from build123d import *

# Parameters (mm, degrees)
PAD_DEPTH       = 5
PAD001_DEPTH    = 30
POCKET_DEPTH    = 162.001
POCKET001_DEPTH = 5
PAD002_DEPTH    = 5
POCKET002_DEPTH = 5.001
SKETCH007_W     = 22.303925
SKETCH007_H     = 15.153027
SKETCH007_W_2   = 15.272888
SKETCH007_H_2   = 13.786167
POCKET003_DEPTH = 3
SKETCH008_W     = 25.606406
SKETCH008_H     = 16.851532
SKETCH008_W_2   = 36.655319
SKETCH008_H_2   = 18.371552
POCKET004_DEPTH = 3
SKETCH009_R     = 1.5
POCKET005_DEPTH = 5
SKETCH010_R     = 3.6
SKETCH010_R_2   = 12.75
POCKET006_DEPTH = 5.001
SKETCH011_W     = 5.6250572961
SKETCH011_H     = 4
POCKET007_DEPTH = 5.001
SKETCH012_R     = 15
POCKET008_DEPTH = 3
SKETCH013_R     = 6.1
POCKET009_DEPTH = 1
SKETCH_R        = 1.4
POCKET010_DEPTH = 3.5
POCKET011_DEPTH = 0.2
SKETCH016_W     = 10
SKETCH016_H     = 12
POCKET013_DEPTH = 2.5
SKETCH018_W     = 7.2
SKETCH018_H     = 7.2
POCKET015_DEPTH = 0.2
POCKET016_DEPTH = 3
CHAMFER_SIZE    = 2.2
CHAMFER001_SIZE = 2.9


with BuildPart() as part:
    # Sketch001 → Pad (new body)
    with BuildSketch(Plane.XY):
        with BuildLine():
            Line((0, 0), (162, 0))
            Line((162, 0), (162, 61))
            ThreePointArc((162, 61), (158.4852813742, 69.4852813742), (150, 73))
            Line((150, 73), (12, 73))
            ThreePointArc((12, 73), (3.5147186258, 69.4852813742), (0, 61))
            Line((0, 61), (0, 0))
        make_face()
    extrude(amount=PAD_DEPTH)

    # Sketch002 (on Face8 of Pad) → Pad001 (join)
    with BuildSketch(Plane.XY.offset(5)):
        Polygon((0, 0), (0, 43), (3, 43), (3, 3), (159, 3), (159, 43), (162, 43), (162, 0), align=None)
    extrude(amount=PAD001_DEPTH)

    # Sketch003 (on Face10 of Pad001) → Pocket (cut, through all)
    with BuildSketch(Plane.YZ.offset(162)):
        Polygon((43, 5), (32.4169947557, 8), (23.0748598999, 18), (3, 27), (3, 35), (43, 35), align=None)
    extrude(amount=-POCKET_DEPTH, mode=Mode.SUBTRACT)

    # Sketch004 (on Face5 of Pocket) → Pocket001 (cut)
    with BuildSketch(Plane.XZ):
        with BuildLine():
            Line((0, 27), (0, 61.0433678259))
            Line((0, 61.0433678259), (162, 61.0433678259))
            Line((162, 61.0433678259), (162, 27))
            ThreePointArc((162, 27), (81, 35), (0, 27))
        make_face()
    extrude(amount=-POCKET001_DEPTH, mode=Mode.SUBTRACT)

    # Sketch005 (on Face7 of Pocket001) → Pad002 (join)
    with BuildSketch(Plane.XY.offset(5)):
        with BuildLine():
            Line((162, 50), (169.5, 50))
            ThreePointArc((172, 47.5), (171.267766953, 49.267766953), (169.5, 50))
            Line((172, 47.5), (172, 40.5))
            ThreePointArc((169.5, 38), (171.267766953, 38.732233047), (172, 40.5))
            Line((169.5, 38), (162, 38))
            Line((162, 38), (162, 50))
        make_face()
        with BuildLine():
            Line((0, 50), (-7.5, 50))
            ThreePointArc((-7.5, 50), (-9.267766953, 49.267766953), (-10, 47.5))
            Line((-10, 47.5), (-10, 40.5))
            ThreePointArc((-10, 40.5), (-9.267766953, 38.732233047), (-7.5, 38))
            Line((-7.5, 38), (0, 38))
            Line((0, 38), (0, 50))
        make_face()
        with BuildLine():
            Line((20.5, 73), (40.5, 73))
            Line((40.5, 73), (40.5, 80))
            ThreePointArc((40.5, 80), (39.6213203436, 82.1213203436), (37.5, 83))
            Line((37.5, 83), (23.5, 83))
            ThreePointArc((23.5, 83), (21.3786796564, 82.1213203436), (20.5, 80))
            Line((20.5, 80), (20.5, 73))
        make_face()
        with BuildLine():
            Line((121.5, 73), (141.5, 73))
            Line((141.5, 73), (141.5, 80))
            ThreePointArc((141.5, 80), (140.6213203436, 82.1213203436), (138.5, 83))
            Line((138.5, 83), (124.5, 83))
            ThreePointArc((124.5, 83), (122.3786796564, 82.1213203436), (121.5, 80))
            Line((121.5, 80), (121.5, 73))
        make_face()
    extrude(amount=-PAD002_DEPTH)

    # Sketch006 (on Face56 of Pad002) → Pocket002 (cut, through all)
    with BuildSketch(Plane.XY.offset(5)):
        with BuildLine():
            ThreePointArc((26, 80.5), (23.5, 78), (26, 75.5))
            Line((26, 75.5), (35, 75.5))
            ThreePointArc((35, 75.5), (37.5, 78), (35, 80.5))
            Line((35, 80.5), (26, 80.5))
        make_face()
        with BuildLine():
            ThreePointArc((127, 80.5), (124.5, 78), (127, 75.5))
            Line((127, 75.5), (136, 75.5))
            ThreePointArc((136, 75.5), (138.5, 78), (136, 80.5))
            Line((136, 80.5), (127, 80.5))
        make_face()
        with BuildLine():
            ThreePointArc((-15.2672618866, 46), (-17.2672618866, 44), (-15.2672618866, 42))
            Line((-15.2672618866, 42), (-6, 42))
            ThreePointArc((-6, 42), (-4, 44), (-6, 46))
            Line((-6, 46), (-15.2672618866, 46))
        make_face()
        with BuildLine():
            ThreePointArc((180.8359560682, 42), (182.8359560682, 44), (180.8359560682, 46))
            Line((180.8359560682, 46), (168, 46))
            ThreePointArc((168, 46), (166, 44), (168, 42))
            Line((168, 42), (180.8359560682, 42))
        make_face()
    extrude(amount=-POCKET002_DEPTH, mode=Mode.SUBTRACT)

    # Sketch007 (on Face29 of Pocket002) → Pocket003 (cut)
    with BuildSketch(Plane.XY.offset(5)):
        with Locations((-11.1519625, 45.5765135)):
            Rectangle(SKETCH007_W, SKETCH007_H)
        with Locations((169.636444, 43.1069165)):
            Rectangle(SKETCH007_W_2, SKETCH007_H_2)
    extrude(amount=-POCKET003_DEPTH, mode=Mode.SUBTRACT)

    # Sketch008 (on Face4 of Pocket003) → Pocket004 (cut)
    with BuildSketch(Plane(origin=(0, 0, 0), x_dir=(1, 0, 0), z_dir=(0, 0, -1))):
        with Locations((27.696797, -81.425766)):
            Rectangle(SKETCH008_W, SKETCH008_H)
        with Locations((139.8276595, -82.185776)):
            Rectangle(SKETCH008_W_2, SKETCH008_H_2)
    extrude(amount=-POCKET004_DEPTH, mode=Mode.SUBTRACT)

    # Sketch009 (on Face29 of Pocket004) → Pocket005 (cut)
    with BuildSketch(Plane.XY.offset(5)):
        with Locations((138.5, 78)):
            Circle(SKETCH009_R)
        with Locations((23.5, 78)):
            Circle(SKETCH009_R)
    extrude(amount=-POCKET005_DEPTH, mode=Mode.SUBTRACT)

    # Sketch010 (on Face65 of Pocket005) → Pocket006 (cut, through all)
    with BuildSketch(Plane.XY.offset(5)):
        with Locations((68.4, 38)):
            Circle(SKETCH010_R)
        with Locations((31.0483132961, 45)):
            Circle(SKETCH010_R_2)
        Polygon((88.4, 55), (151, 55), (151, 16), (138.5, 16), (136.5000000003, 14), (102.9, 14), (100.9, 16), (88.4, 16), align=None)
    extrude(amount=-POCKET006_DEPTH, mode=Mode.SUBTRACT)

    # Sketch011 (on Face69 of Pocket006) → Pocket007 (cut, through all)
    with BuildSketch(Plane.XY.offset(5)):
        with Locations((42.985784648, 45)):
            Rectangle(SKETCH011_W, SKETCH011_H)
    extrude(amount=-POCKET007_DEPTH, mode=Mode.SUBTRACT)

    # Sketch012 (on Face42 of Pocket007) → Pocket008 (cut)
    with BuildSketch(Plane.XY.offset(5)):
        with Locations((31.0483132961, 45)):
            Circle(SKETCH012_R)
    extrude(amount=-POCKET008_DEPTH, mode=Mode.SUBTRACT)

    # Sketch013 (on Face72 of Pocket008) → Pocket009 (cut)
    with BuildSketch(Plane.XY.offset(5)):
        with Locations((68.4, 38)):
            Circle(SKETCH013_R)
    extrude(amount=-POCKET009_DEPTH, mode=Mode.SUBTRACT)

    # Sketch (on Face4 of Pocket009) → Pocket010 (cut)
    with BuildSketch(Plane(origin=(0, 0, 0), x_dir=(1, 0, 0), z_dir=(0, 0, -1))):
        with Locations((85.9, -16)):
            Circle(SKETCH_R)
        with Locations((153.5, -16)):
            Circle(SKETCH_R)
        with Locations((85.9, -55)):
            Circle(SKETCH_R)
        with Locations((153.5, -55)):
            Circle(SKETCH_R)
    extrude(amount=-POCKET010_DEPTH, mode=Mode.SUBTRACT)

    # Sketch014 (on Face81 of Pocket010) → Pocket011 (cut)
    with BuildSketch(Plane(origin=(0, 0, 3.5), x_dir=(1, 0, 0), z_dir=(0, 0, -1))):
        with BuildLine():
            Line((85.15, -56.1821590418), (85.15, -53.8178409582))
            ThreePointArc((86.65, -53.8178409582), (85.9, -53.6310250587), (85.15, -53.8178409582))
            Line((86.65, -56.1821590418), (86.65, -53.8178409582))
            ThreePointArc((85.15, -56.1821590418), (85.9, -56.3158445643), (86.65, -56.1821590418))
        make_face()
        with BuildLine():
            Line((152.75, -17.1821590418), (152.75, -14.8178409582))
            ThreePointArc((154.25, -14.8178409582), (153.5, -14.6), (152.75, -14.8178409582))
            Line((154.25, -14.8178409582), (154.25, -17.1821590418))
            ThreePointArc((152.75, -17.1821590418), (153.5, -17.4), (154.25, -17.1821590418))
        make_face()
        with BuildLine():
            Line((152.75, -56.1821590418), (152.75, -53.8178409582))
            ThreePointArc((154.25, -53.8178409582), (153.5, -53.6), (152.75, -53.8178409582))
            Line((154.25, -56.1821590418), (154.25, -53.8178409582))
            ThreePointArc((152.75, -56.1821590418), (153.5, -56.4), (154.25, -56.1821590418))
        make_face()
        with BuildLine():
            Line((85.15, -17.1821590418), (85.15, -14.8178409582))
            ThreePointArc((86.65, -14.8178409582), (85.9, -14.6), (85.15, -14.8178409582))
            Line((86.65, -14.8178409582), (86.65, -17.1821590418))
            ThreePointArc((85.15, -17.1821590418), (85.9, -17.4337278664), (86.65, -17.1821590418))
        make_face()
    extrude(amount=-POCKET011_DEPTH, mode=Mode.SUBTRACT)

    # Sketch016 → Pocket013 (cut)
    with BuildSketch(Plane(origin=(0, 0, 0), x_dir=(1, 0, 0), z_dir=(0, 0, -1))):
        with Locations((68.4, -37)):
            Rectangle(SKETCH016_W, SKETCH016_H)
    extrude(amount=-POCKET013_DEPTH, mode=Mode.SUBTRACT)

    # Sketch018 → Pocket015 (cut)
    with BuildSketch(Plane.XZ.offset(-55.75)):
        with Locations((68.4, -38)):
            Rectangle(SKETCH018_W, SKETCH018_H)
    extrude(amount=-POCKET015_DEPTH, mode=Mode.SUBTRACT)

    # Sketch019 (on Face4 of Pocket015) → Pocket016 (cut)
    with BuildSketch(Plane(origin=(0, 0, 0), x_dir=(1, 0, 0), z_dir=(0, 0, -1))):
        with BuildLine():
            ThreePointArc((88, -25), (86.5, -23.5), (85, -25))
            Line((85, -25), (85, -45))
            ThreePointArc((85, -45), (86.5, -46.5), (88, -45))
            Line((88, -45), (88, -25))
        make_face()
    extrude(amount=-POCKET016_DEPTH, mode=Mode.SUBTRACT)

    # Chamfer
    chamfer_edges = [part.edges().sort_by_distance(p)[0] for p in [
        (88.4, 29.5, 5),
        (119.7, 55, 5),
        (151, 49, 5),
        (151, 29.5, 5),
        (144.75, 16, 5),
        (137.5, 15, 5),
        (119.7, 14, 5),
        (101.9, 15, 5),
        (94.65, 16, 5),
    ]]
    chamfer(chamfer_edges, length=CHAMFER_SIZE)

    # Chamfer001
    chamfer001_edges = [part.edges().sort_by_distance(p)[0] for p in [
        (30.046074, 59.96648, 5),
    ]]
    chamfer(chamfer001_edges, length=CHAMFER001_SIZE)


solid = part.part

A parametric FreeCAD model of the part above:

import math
import FreeCAD as App
import Part
import Sketcher

V = App.Vector
Q = App.Units.Quantity


def edges_at(feature, points):
    """Names of the edges that pass closest to the given points."""
    edges = feature.Shape.Edges
    near = lambda p: min(range(len(edges)), key=lambda i: edges[i].distToShape(Part.Vertex(*p))[0])
    return sorted({f"Edge{near(p) + 1}" for p in points})

doc = App.newDocument("Part")
body = doc.addObject("PartDesign::Body", "Body")

# Sketch on XY plane
sketch1 = body.newObject("Sketcher::SketchObject", "Sketch")
sketch1.AttachmentSupport = (doc.getObject("XY_Plane"), [""])
sketch1.MapMode = "FlatFace"
sketch1.addGeometry([
    Part.LineSegment(V(0, 0, 0), V(162, 0, 0)),  # 0
    Part.LineSegment(V(162, 0, 0), V(162, 61, 0)),  # 1
    Part.ArcOfCircle(Part.Circle(V(150, 61, 0), V(0, 0, 1), 12), math.radians(0), math.radians(90)),  # 2
    Part.LineSegment(V(150, 73, 0), V(12, 73, 0)),  # 3
    Part.ArcOfCircle(Part.Circle(V(12, 61, 0), V(0, 0, 1), 12), math.radians(90), math.radians(180)),  # 4
    Part.LineSegment(V(0, 61, 0), V(0, 0, 0)),  # 5
], False)
sketch1.addConstraint([
    Sketcher.Constraint("Coincident", 0, 2, 1, 1),
    Sketcher.Constraint("Tangent", 1, 2, 2, 1),
    Sketcher.Constraint("Tangent", 2, 2, 3, 1),
    Sketcher.Constraint("Tangent", 3, 2, 4, 1),
    Sketcher.Constraint("Tangent", 4, 2, 5, 1),
    Sketcher.Constraint("Coincident", 5, 2, 0, 1),
    Sketcher.Constraint("Horizontal", 0),
    Sketcher.Constraint("Vertical", 1),
    Sketcher.Constraint("Horizontal", 3),
    Sketcher.Constraint("Vertical", 5),
    Sketcher.Constraint("Coincident", 5, 2, -1, 1),
    Sketcher.Constraint("Equal", 2, 4),
    Sketcher.Constraint("Radius", 2, Q("12 mm")),
    Sketcher.Constraint("DistanceX", 0, 1, 0, 2, Q("162 mm")),
    Sketcher.Constraint("DistanceY", 1, 1, 1, 2, Q("61 mm")),
])
pad1 = body.newObject("PartDesign::Pad", "Pad")
pad1.Profile = sketch1
pad1.Length = 5

# Sketch on XY plane
sketch2 = body.newObject("Sketcher::SketchObject", "Sketch001")
sketch2.AttachmentSupport = (doc.getObject("XY_Plane"), [""])
sketch2.MapMode = "FlatFace"
sketch2.AttachmentOffset = App.Placement(V(0, 0, 5), App.Rotation())
sketch2.addGeometry([
    Part.LineSegment(V(0, 43, 0), V(0, 0, 0)),  # 0
    Part.LineSegment(V(0, 0, 0), V(162, 0, 0)),  # 1
    Part.LineSegment(V(162, 0, 0), V(162, 43, 0)),  # 2
    Part.LineSegment(V(162, 43, 0), V(159, 43, 0)),  # 3
    Part.LineSegment(V(159, 43, 0), V(159, 3, 0)),  # 4
    Part.LineSegment(V(159, 3, 0), V(3, 3, 0)),  # 5
    Part.LineSegment(V(3, 3, 0), V(3, 43, 0)),  # 6
    Part.LineSegment(V(3, 43, 0), V(0, 43, 0)),  # 7
], False)
sketch2.addConstraint([
    Sketcher.Constraint("Coincident", 0, 2, 1, 1),
    Sketcher.Constraint("Coincident", 1, 2, 2, 1),
    Sketcher.Constraint("Coincident", 2, 2, 3, 1),
    Sketcher.Constraint("Coincident", 3, 2, 4, 1),
    Sketcher.Constraint("Coincident", 4, 2, 5, 1),
    Sketcher.Constraint("Coincident", 5, 2, 6, 1),
    Sketcher.Constraint("Coincident", 6, 2, 7, 1),
    Sketcher.Constraint("Coincident", 7, 2, 0, 1),
    Sketcher.Constraint("Vertical", 0),
    Sketcher.Constraint("Horizontal", 1),
    Sketcher.Constraint("Vertical", 2),
    Sketcher.Constraint("Horizontal", 3),
    Sketcher.Constraint("Vertical", 4),
    Sketcher.Constraint("Horizontal", 5),
    Sketcher.Constraint("Vertical", 6),
    Sketcher.Constraint("Horizontal", 7),
    Sketcher.Constraint("Coincident", 0, 2, -1, 1),
    Sketcher.Constraint("Horizontal", 3, 2, 6, 2),
    Sketcher.Constraint("Equal", 3, 7),
    Sketcher.Constraint("DistanceX", 1, 1, 1, 2, Q("162 mm")),
    Sketcher.Constraint("DistanceX", 3, 2, 3, 1, Q("3 mm")),
    Sketcher.Constraint("DistanceY", 0, 2, 0, 1, Q("43 mm")),
    Sketcher.Constraint("DistanceY", 4, 2, 4, 1, Q("40 mm")),
])
pad2 = body.newObject("PartDesign::Pad", "Pad001")
pad2.Profile = sketch2
pad2.Length = 30

# Sketch on YZ plane
sketch3 = body.newObject("Sketcher::SketchObject", "Sketch002")
sketch3.AttachmentSupport = (doc.getObject("YZ_Plane"), [""])
sketch3.MapMode = "FlatFace"
sketch3.AttachmentOffset = App.Placement(V(0, 0, 162), App.Rotation())
sketch3.addGeometry([
    Part.LineSegment(V(32, 8, 0), V(43, 5, 0)),  # 0
    Part.LineSegment(V(43, 5, 0), V(43, 35, 0)),  # 1
    Part.LineSegment(V(43, 35, 0), V(3, 35, 0)),  # 2
    Part.LineSegment(V(3, 35, 0), V(3, 27, 0)),  # 3
    Part.LineSegment(V(3, 27, 0), V(23, 18, 0)),  # 4
    Part.LineSegment(V(23, 18, 0), V(32, 8, 0)),  # 5
], False)
sketch3.addConstraint([
    Sketcher.Constraint("Coincident", 0, 2, 1, 1),
    Sketcher.Constraint("Coincident", 1, 2, 2, 1),
    Sketcher.Constraint("Coincident", 2, 2, 3, 1),
    Sketcher.Constraint("Coincident", 3, 2, 4, 1),
    Sketcher.Constraint("Coincident", 4, 2, 5, 1),
    Sketcher.Constraint("Coincident", 5, 2, 0, 1),
    Sketcher.Constraint("Vertical", 1),
    Sketcher.Constraint("Horizontal", 2),
    Sketcher.Constraint("Vertical", 3),
    Sketcher.Constraint("DistanceX", 2, 2, 2, 1, Q("40 mm")),
    Sketcher.Constraint("DistanceY", 1, 1, 1, 2, Q("30 mm")),
    Sketcher.Constraint("DistanceY", 3, 2, 3, 1, Q("8 mm")),
    Sketcher.Constraint("Distance", 0, Q("11 mm")),
    Sketcher.Constraint("Distance", 4, Q("22 mm")),
    Sketcher.Constraint("DistanceX", -1, 1, 0, 2, Q("43 mm")),
    Sketcher.Constraint("DistanceY", -1, 1, 0, 2, Q("5 mm")),
    Sketcher.Constraint("DistanceY", -1, 1, 4, 2, Q("18 mm")),
    Sketcher.Constraint("DistanceY", -1, 1, 5, 2, Q("8 mm")),
])
pocket1 = body.newObject("PartDesign::Pocket", "Pocket")
pocket1.Profile = sketch3
pocket1.Type = "ThroughAll"

# Sketch on XZ plane
sketch4 = body.newObject("Sketcher::SketchObject", "Sketch003")
sketch4.AttachmentSupport = (doc.getObject("XZ_Plane"), [""])
sketch4.MapMode = "FlatFace"
sketch4.addGeometry([
    Part.LineSegment(V(0, 61, 0), V(0, 27, 0)),
    Part.ArcOfCircle(Part.Circle(V(81, -379, 0), V(0, 0, 1), 414), math.radians(79), math.radians(101)),
    Part.LineSegment(V(162, 27, 0), V(162, 61, 0)),
    Part.LineSegment(V(162, 61, 0), V(0, 61, 0)),
], False)
sketch4.addConstraint([
    Sketcher.Constraint("Coincident", 0, 2, 1, 2),
    Sketcher.Constraint("Coincident", 1, 1, 2, 1),
    Sketcher.Constraint("Coincident", 2, 2, 3, 1),
    Sketcher.Constraint("Coincident", 3, 2, 0, 1),
    Sketcher.Constraint("Vertical", 0),
    Sketcher.Constraint("Vertical", 2),
    Sketcher.Constraint("Horizontal", 3),
    Sketcher.Constraint("PointOnObject", 0, 2, -2),
    Sketcher.Constraint("Horizontal", 0, 2, 1, 1),
    Sketcher.Constraint("DistanceX", 3, 2, 3, 1, Q("162 mm")),
    Sketcher.Constraint("DistanceY", -1, 1, 0, 2, Q("27 mm")),
    Sketcher.Constraint("Radius", 1, Q("414.0625 mm")),
    Sketcher.Constraint("DistanceY", 0, 2, 0, 1, Q("34.043368 mm")),
])
pocket2 = body.newObject("PartDesign::Pocket", "Pocket001")
pocket2.Profile = sketch4
pocket2.Length = 5

# Sketch on XY plane
sketch5 = body.newObject("Sketcher::SketchObject", "Sketch004")
sketch5.AttachmentSupport = (doc.getObject("XY_Plane"), [""])
sketch5.MapMode = "FlatFace"
sketch5.AttachmentOffset = App.Placement(V(0, 0, 5), App.Rotation())
sketch5.addGeometry([
    Part.LineSegment(V(169.5, 50, 0), V(162, 50, 0)),  # 0
    Part.LineSegment(V(162, 50, 0), V(162, 38, 0)),  # 1
    Part.LineSegment(V(162, 38, 0), V(169.5, 38, 0)),  # 2
    Part.ArcOfCircle(Part.Circle(V(169.5, 40.5, 0), V(0, 0, 1), 2.5), math.radians(-90), math.radians(0)),  # 3
    Part.LineSegment(V(172, 40.5, 0), V(172, 47.5, 0)),  # 4
    Part.ArcOfCircle(Part.Circle(V(169.5, 47.5, 0), V(0, 0, 1), 2.5), math.radians(0), math.radians(90)),  # 5
    Part.LineSegment(V(0, 50, 0), V(-7.5, 50, 0)),  # 6
    Part.ArcOfCircle(Part.Circle(V(-7.5, 47.5, 0), V(0, 0, 1), 2.5), math.radians(90), math.radians(180)),  # 7
    Part.LineSegment(V(-10, 47.5, 0), V(-10, 40.5, 0)),  # 8
    Part.ArcOfCircle(Part.Circle(V(-7.5, 40.5, 0), V(0, 0, 1), 2.5), math.radians(180), math.radians(270)),  # 9
    Part.LineSegment(V(-7.5, 38, 0), V(0, 38, 0)),  # 10
    Part.LineSegment(V(0, 38, 0), V(0, 50, 0)),  # 11
    Part.LineSegment(V(20.5, 73, 0), V(40.5, 73, 0)),  # 12
    Part.LineSegment(V(40.5, 73, 0), V(40.5, 80, 0)),  # 13
    Part.ArcOfCircle(Part.Circle(V(37.5, 80, 0), V(0, 0, 1), 3), math.radians(0), math.radians(90)),  # 14
    Part.LineSegment(V(37.5, 83, 0), V(23.5, 83, 0)),  # 15
    Part.ArcOfCircle(Part.Circle(V(23.5, 80, 0), V(0, 0, 1), 3), math.radians(90), math.radians(180)),  # 16
    Part.LineSegment(V(20.5, 80, 0), V(20.5, 73, 0)),  # 17
    Part.LineSegment(V(121.5, 73, 0), V(141.5, 73, 0)),  # 18
    Part.LineSegment(V(141.5, 73, 0), V(141.5, 80, 0)),  # 19
    Part.ArcOfCircle(Part.Circle(V(138.5, 80, 0), V(0, 0, 1), 3), math.radians(0), math.radians(90)),  # 20
    Part.LineSegment(V(138.5, 83, 0), V(124.5, 83, 0)),  # 21
    Part.ArcOfCircle(Part.Circle(V(124.5, 80, 0), V(0, 0, 1), 3), math.radians(90), math.radians(180)),  # 22
    Part.LineSegment(V(121.5, 80, 0), V(121.5, 73, 0)),  # 23
], False)
sketch5.addConstraint([
    Sketcher.Constraint("Coincident", 0, 2, 1, 1),
    Sketcher.Constraint("Coincident", 1, 2, 2, 1),
    Sketcher.Constraint("Tangent", 2, 2, 3, 1),
    Sketcher.Constraint("Tangent", 3, 2, 4, 1),
    Sketcher.Constraint("Tangent", 4, 2, 5, 1),
    Sketcher.Constraint("Tangent", 5, 2, 0, 1),
    Sketcher.Constraint("Tangent", 6, 2, 7, 1),
    Sketcher.Constraint("Tangent", 7, 2, 8, 1),
    Sketcher.Constraint("Tangent", 8, 2, 9, 1),
    Sketcher.Constraint("Tangent", 9, 2, 10, 1),
    Sketcher.Constraint("Coincident", 10, 2, 11, 1),
    Sketcher.Constraint("Coincident", 11, 2, 6, 1),
    Sketcher.Constraint("Coincident", 12, 2, 13, 1),
    Sketcher.Constraint("Tangent", 13, 2, 14, 1),
    Sketcher.Constraint("Tangent", 14, 2, 15, 1),
    Sketcher.Constraint("Tangent", 15, 2, 16, 1),
    Sketcher.Constraint("Tangent", 16, 2, 17, 1),
    Sketcher.Constraint("Coincident", 17, 2, 12, 1),
    Sketcher.Constraint("Coincident", 18, 2, 19, 1),
    Sketcher.Constraint("Tangent", 19, 2, 20, 1),
    Sketcher.Constraint("Tangent", 20, 2, 21, 1),
    Sketcher.Constraint("Tangent", 21, 2, 22, 1),
    Sketcher.Constraint("Tangent", 22, 2, 23, 1),
    Sketcher.Constraint("Coincident", 23, 2, 18, 1),
    Sketcher.Constraint("Horizontal", 0),
    Sketcher.Constraint("Vertical", 1),
    Sketcher.Constraint("Horizontal", 2),
    Sketcher.Constraint("Vertical", 4),
    Sketcher.Constraint("Horizontal", 6),
    Sketcher.Constraint("Vertical", 8),
    Sketcher.Constraint("Horizontal", 10),
    Sketcher.Constraint("Vertical", 11),
    Sketcher.Constraint("Horizontal", 12),
    Sketcher.Constraint("Vertical", 13),
    Sketcher.Constraint("Horizontal", 15),
    Sketcher.Constraint("Vertical", 17),
    Sketcher.Constraint("Horizontal", 18),
    Sketcher.Constraint("Vertical", 19),
    Sketcher.Constraint("Horizontal", 21),
    Sketcher.Constraint("Vertical", 23),
    Sketcher.Constraint("Equal", 3, 5),
    Sketcher.Constraint("Equal", 5, 7),
    Sketcher.Constraint("Equal", 7, 9),
    Sketcher.Constraint("Equal", 14, 16),
    Sketcher.Constraint("Equal", 16, 20),
    Sketcher.Constraint("Equal", 20, 22),
    Sketcher.Constraint("PointOnObject", 10, 2, -2),
    Sketcher.Constraint("Horizontal", 5, 3, 7, 3),
    Sketcher.Constraint("Horizontal", 3, 3, 9, 3),
    Sketcher.Constraint("Horizontal", 16, 3, 20, 3),
    Sketcher.Constraint("Horizontal", 17, 2, 18, 2),
    Sketcher.Constraint("Equal", 2, 6),
    Sketcher.Constraint("Equal", 12, 18),
    Sketcher.Constraint("Equal", 8, 13),
    Sketcher.Constraint("Radius", 14, Q("3 mm")),
    Sketcher.Constraint("Radius", 3, Q("2.5 mm")),
    Sketcher.Constraint("DistanceX", 12, 1, 12, 2, Q("20 mm")),
    Sketcher.Constraint("DistanceY", 1, 2, 1, 1, Q("12 mm")),
    Sketcher.Constraint("DistanceX", 0, 2, 0, 1, Q("7.5 mm")),
    Sketcher.Constraint("DistanceY", -1, 1, 14, 3, Q("80 mm")),
    Sketcher.Constraint("DistanceX", -1, 1, 0, 2, Q("162 mm")),
    Sketcher.Constraint("DistanceY", -1, 1, 0, 2, Q("50 mm")),
    Sketcher.Constraint("DistanceX", 7, 3, 14, 3, Q("45 mm")),
    Sketcher.Constraint("DistanceX", 20, 3, 5, 3, Q("31 mm")),
])
pad3 = body.newObject("PartDesign::Pad", "Pad002")
pad3.Profile = sketch5
pad3.Length = 5
pad3.Reversed = True

# Sketch on XY plane
sketch6 = body.newObject("Sketcher::SketchObject", "Sketch005")
sketch6.AttachmentSupport = (doc.getObject("XY_Plane"), [""])
sketch6.MapMode = "FlatFace"
sketch6.AttachmentOffset = App.Placement(V(0, 0, 5), App.Rotation())
sketch6.addGeometry([
    Part.ArcOfCircle(Part.Circle(V(26, 78, 0), V(0, 0, 1), 2.5), math.radians(90), math.radians(270)),  # 0
    Part.LineSegment(V(26, 75.5, 0), V(35, 75.5, 0)),  # 1
    Part.ArcOfCircle(Part.Circle(V(35, 78, 0), V(0, 0, 1), 2.5), math.radians(-90), math.radians(90)),  # 2
    Part.LineSegment(V(35, 80.5, 0), V(26, 80.5, 0)),  # 3
    Part.ArcOfCircle(Part.Circle(V(127, 78, 0), V(0, 0, 1), 2.5), math.radians(90), math.radians(270)),  # 4
    Part.LineSegment(V(127, 75.5, 0), V(136, 75.5, 0)),  # 5
    Part.ArcOfCircle(Part.Circle(V(136, 78, 0), V(0, 0, 1), 2.5), math.radians(-90), math.radians(90)),  # 6
    Part.LineSegment(V(136, 80.5, 0), V(127, 80.5, 0)),  # 7
    Part.ArcOfCircle(Part.Circle(V(-15.3, 44, 0), V(0, 0, 1), 2), math.radians(90), math.radians(270)),  # 8
    Part.LineSegment(V(-15.3, 42, 0), V(-6, 42, 0)),  # 9
    Part.ArcOfCircle(Part.Circle(V(-6, 44, 0), V(0, 0, 1), 2), math.radians(-90), math.radians(90)),  # 10
    Part.LineSegment(V(-6, 46, 0), V(-15.3, 46, 0)),  # 11
    Part.ArcOfCircle(Part.Circle(V(180.8, 44, 0), V(0, 0, 1), 2), math.radians(-90), math.radians(90)),  # 12
    Part.LineSegment(V(180.8, 46, 0), V(168, 46, 0)),  # 13
    Part.ArcOfCircle(Part.Circle(V(168, 44, 0), V(0, 0, 1), 2), math.radians(90), math.radians(270)),  # 14
    Part.LineSegment(V(168, 42, 0), V(180.8, 42, 0)),  # 15
], False)
sketch6.addConstraint([
    Sketcher.Constraint("Tangent", 0, 2, 1, 1),
    Sketcher.Constraint("Tangent", 1, 2, 2, 1),
    Sketcher.Constraint("Tangent", 2, 2, 3, 1),
    Sketcher.Constraint("Tangent", 3, 2, 0, 1),
    Sketcher.Constraint("Tangent", 4, 2, 5, 1),
    Sketcher.Constraint("Tangent", 5, 2, 6, 1),
    Sketcher.Constraint("Tangent", 6, 2, 7, 1),
    Sketcher.Constraint("Tangent", 7, 2, 4, 1),
    Sketcher.Constraint("Tangent", 8, 2, 9, 1),
    Sketcher.Constraint("Tangent", 9, 2, 10, 1),
    Sketcher.Constraint("Tangent", 10, 2, 11, 1),
    Sketcher.Constraint("Tangent", 11, 2, 8, 1),
    Sketcher.Constraint("Tangent", 12, 2, 13, 1),
    Sketcher.Constraint("Tangent", 13, 2, 14, 1),
    Sketcher.Constraint("Tangent", 14, 2, 15, 1),
    Sketcher.Constraint("Tangent", 15, 2, 12, 1),
    Sketcher.Constraint("Horizontal", 1),
    Sketcher.Constraint("Horizontal", 3),
    Sketcher.Constraint("Horizontal", 5),
    Sketcher.Constraint("Horizontal", 7),
    Sketcher.Constraint("Horizontal", 9),
    Sketcher.Constraint("Horizontal", 11),
    Sketcher.Constraint("Horizontal", 13),
    Sketcher.Constraint("Horizontal", 15),
    Sketcher.Constraint("Equal", 2, 4),
    Sketcher.Constraint("Equal", 10, 12),
    Sketcher.Constraint("Horizontal", 2, 3, 4, 3),
    Sketcher.Constraint("Horizontal", 10, 3, 12, 3),
    Sketcher.Constraint("Equal", 3, 5),
    Sketcher.Constraint("Radius", 8, Q("2 mm")),
    Sketcher.Constraint("Radius", 0, Q("2.5 mm")),
    Sketcher.Constraint("DistanceX", 1, 1, 1, 2, Q("9 mm")),
    Sketcher.Constraint("DistanceX", -1, 1, 0, 3, Q("26 mm")),
    Sketcher.Constraint("DistanceY", -1, 1, 0, 3, Q("78 mm")),
    Sketcher.Constraint("DistanceX", -1, 1, 4, 3, Q("127 mm")),
    Sketcher.Constraint("DistanceY", -1, 1, 8, 3, Q("44 mm")),
    Sketcher.Constraint("DistanceX", 10, 3, -1, 1, Q("6 mm")),
    Sketcher.Constraint("DistanceX", -1, 1, 14, 3, Q("168 mm")),
    Sketcher.Constraint("DistanceX", 9, 1, 9, 2, Q("9.267262 mm")),
    Sketcher.Constraint("DistanceX", 13, 2, 13, 1, Q("12.835956 mm")),
])
pocket3 = body.newObject("PartDesign::Pocket", "Pocket002")
pocket3.Profile = sketch6
pocket3.Type = "ThroughAll"

# Sketch on XY plane
sketch7 = body.newObject("Sketcher::SketchObject", "Sketch006")
sketch7.AttachmentSupport = (doc.getObject("XY_Plane"), [""])
sketch7.MapMode = "FlatFace"
sketch7.AttachmentOffset = App.Placement(V(0, 0, 5), App.Rotation())
sketch7.addGeometry([
    Part.LineSegment(V(-22, 53, 0), V(-22, 38, 0)),  # 0
    Part.LineSegment(V(-22, 38, 0), V(0, 38, 0)),  # 1
    Part.LineSegment(V(0, 38, 0), V(0, 53, 0)),  # 2
    Part.LineSegment(V(0, 53, 0), V(-22, 53, 0)),  # 3
    Part.LineSegment(V(162, 50, 0), V(162, 36, 0)),  # 4
    Part.LineSegment(V(162, 36, 0), V(177, 36, 0)),  # 5
    Part.LineSegment(V(177, 36, 0), V(177, 50, 0)),  # 6
    Part.LineSegment(V(177, 50, 0), V(162, 50, 0)),  # 7
], False)
sketch7.addConstraint([
    Sketcher.Constraint("Coincident", 0, 2, 1, 1),
    Sketcher.Constraint("Coincident", 1, 2, 2, 1),
    Sketcher.Constraint("Coincident", 2, 2, 3, 1),
    Sketcher.Constraint("Coincident", 3, 2, 0, 1),
    Sketcher.Constraint("Coincident", 4, 2, 5, 1),
    Sketcher.Constraint("Coincident", 5, 2, 6, 1),
    Sketcher.Constraint("Coincident", 6, 2, 7, 1),
    Sketcher.Constraint("Coincident", 7, 2, 4, 1),
    Sketcher.Constraint("Vertical", 0),
    Sketcher.Constraint("Horizontal", 1),
    Sketcher.Constraint("Vertical", 2),
    Sketcher.Constraint("Horizontal", 3),
    Sketcher.Constraint("Vertical", 4),
    Sketcher.Constraint("Horizontal", 5),
    Sketcher.Constraint("Vertical", 6),
    Sketcher.Constraint("Horizontal", 7),
    Sketcher.Constraint("PointOnObject", 1, 2, -2),
    Sketcher.Constraint("DistanceY", -1, 1, 0, 2, Q("38 mm")),
    Sketcher.Constraint("DistanceX", -1, 1, 4, 2, Q("162 mm")),
    Sketcher.Constraint("DistanceY", -1, 1, 6, 2, Q("50 mm")),
    Sketcher.Constraint("DistanceX", 1, 1, 1, 2, Q("22.303925 mm")),
    Sketcher.Constraint("DistanceX", 5, 1, 5, 2, Q("15.272888 mm")),
    Sketcher.Constraint("DistanceY", 0, 2, 0, 1, Q("15.153027 mm")),
    Sketcher.Constraint("DistanceY", 4, 2, 4, 1, Q("13.786167 mm")),
])
pocket4 = body.newObject("PartDesign::Pocket", "Pocket003")
pocket4.Profile = sketch7
pocket4.Length = 3

# Sketch on XY plane
sketch8 = body.newObject("Sketcher::SketchObject", "Sketch007")
sketch8.AttachmentSupport = (doc.getObject("XY_Plane"), [""])
sketch8.MapMode = "FlatFace"
sketch8.addGeometry([
    Part.LineSegment(V(15, 73, 0), V(15, 90, 0)),  # 0
    Part.LineSegment(V(15, 90, 0), V(40, 90, 0)),  # 1
    Part.LineSegment(V(40, 90, 0), V(40, 73, 0)),  # 2
    Part.LineSegment(V(40, 73, 0), V(15, 73, 0)),  # 3
    Part.LineSegment(V(122, 73, 0), V(122, 91, 0)),  # 4
    Part.LineSegment(V(122, 91, 0), V(158, 91, 0)),  # 5
    Part.LineSegment(V(158, 91, 0), V(158, 73, 0)),  # 6
    Part.LineSegment(V(158, 73, 0), V(122, 73, 0)),  # 7
], False)
sketch8.addConstraint([
    Sketcher.Constraint("Coincident", 0, 2, 1, 1),
    Sketcher.Constraint("Coincident", 1, 2, 2, 1),
    Sketcher.Constraint("Coincident", 2, 2, 3, 1),
    Sketcher.Constraint("Coincident", 3, 2, 0, 1),
    Sketcher.Constraint("Coincident", 4, 2, 5, 1),
    Sketcher.Constraint("Coincident", 5, 2, 6, 1),
    Sketcher.Constraint("Coincident", 6, 2, 7, 1),
    Sketcher.Constraint("Coincident", 7, 2, 4, 1),
    Sketcher.Constraint("Vertical", 0),
    Sketcher.Constraint("Horizontal", 1),
    Sketcher.Constraint("Vertical", 2),
    Sketcher.Constraint("Horizontal", 3),
    Sketcher.Constraint("Vertical", 4),
    Sketcher.Constraint("Horizontal", 5),
    Sketcher.Constraint("Vertical", 6),
    Sketcher.Constraint("Horizontal", 7),
    Sketcher.Constraint("Horizontal", 3, 2, 6, 2),
    Sketcher.Constraint("DistanceY", -1, 1, 2, 2, Q("73 mm")),
    Sketcher.Constraint("DistanceX", 1, 2, 4, 2, Q("81 mm")),
    Sketcher.Constraint("DistanceX", -1, 1, 1, 2, Q("40.5 mm")),
    Sketcher.Constraint("DistanceX", 5, 1, 5, 2, Q("36.655319 mm")),
    Sketcher.Constraint("DistanceY", 4, 1, 4, 2, Q("18.371552 mm")),
    Sketcher.Constraint("DistanceX", 1, 1, 1, 2, Q("25.606406 mm")),
    Sketcher.Constraint("DistanceY", 0, 1, 0, 2, Q("16.851532 mm")),
])
pocket5 = body.newObject("PartDesign::Pocket", "Pocket004")
pocket5.Profile = sketch8
pocket5.Length = 3
pocket5.Reversed = True

# Sketch on XY plane
sketch9 = body.newObject("Sketcher::SketchObject", "Sketch008")
sketch9.AttachmentSupport = (doc.getObject("XY_Plane"), [""])
sketch9.MapMode = "FlatFace"
sketch9.AttachmentOffset = App.Placement(V(0, 0, 5), App.Rotation())
sketch9.addGeometry([
    Part.Circle(V(138.5, 78, 0), V(0, 0, 1), 1.5),
    Part.Circle(V(23.5, 78, 0), V(0, 0, 1), 1.5),
], False)
sketch9.addConstraint([
    Sketcher.Constraint("Equal", 0, 1),
    Sketcher.Constraint("Horizontal", 0, 3, 1, 3),
    Sketcher.Constraint("Diameter", 0, Q("3 mm")),
    Sketcher.Constraint("DistanceY", -1, 1, 0, 3, Q("78 mm")),
    Sketcher.Constraint("DistanceX", 1, 3, 0, 3, Q("115 mm")),
    Sketcher.Constraint("DistanceX", -1, 1, 0, 3, Q("138.5 mm")),
])
pocket6 = body.newObject("PartDesign::Pocket", "Pocket005")
pocket6.Profile = sketch9
pocket6.Length = 5

# Sketch on XY plane
sketch10 = body.newObject("Sketcher::SketchObject", "Sketch009")
sketch10.AttachmentSupport = (doc.getObject("XY_Plane"), [""])
sketch10.MapMode = "FlatFace"
sketch10.AttachmentOffset = App.Placement(V(0, 0, 5), App.Rotation())
sketch10.addGeometry([
    Part.Circle(V(68.4, 38, 0), V(0, 0, 1), 3.6),  # 0
    Part.Circle(V(31, 45, 0), V(0, 0, 1), 12.8),  # 1
    Part.LineSegment(V(151, 55, 0), V(88.4, 55, 0)),  # 2
    Part.LineSegment(V(88.4, 55, 0), V(88.4, 16, 0)),  # 3
    Part.LineSegment(V(88.4, 16, 0), V(100.9, 16, 0)),  # 4
    Part.LineSegment(V(100.9, 16, 0), V(102.9, 14, 0)),  # 5
    Part.LineSegment(V(102.9, 14, 0), V(136.5, 14, 0)),  # 6
    Part.LineSegment(V(136.5, 14, 0), V(138.5, 16, 0)),  # 7
    Part.LineSegment(V(138.5, 16, 0), V(151, 16, 0)),  # 8
    Part.LineSegment(V(151, 16, 0), V(151, 55, 0)),  # 9
], False)
sketch10.addConstraint([
    Sketcher.Constraint("Coincident", 2, 2, 3, 1),
    Sketcher.Constraint("Coincident", 3, 2, 4, 1),
    Sketcher.Constraint("Coincident", 4, 2, 5, 1),
    Sketcher.Constraint("Coincident", 5, 2, 6, 1),
    Sketcher.Constraint("Coincident", 6, 2, 7, 1),
    Sketcher.Constraint("Coincident", 7, 2, 8, 1),
    Sketcher.Constraint("Coincident", 8, 2, 9, 1),
    Sketcher.Constraint("Coincident", 9, 2, 2, 1),
    Sketcher.Constraint("Horizontal", 2),
    Sketcher.Constraint("Vertical", 3),
    Sketcher.Constraint("Horizontal", 4),
    Sketcher.Constraint("Horizontal", 6),
    Sketcher.Constraint("Horizontal", 8),
    Sketcher.Constraint("Vertical", 9),
    Sketcher.Constraint("Perpendicular", 5, 7),
    Sketcher.Constraint("Horizontal", 4, 2, 7, 2),
    Sketcher.Constraint("Equal", 4, 8),
    Sketcher.Constraint("Equal", 5, 7),
    Sketcher.Constraint("Diameter", 0, Q("7.2 mm")),
    Sketcher.Constraint("Diameter", 1, Q("25.5 mm")),
    Sketcher.Constraint("DistanceY", 3, 2, 3, 1, Q("39 mm")),
    Sketcher.Constraint("DistanceX", 2, 2, 2, 1, Q("62.6 mm")),
    Sketcher.Constraint("DistanceX", 4, 1, 4, 2, Q("12.5 mm")),
    Sketcher.Constraint("DistanceX", 6, 1, 6, 2, Q("33.6 mm")),
    Sketcher.Constraint("DistanceY", -1, 1, 0, 3, Q("38 mm")),
    Sketcher.Constraint("DistanceY", -1, 1, 1, 3, Q("45 mm")),
    Sketcher.Constraint("DistanceY", -1, 1, 2, 2, Q("55 mm")),
    Sketcher.Constraint("DistanceX", -1, 1, 8, 2, Q("151 mm")),
    Sketcher.Constraint("DistanceX", 0, 3, 2, 2, Q("20 mm")),
    Sketcher.Constraint("DistanceX", -1, 1, 1, 3, Q("31.048313 mm")),
])
pocket7 = body.newObject("PartDesign::Pocket", "Pocket006")
pocket7.Profile = sketch10
pocket7.Type = "ThroughAll"

# Sketch on XY plane
sketch11 = body.newObject("Sketcher::SketchObject", "Sketch010")
sketch11.AttachmentSupport = (doc.getObject("XY_Plane"), [""])
sketch11.MapMode = "FlatFace"
sketch11.AttachmentOffset = App.Placement(V(0, 0, 5), App.Rotation())
sketch11.addGeometry([
    Part.LineSegment(V(40.2, 47, 0), V(40.2, 43, 0)),
    Part.LineSegment(V(40.2, 43, 0), V(45.8, 43, 0)),
    Part.LineSegment(V(45.8, 43, 0), V(45.8, 47, 0)),
    Part.LineSegment(V(45.8, 47, 0), V(40.2, 47, 0)),
], False)
sketch11.addConstraint([
    Sketcher.Constraint("Coincident", 0, 2, 1, 1),
    Sketcher.Constraint("Coincident", 1, 2, 2, 1),
    Sketcher.Constraint("Coincident", 2, 2, 3, 1),
    Sketcher.Constraint("Coincident", 3, 2, 0, 1),
    Sketcher.Constraint("Vertical", 0),
    Sketcher.Constraint("Horizontal", 1),
    Sketcher.Constraint("Vertical", 2),
    Sketcher.Constraint("Horizontal", 3),
    Sketcher.Constraint("DistanceY", 0, 2, 0, 1, Q("4 mm")),
    Sketcher.Constraint("DistanceY", -1, 1, 0, 2, Q("43 mm")),
    Sketcher.Constraint("DistanceX", 1, 1, 1, 2, Q("5.625057 mm")),
    Sketcher.Constraint("DistanceX", -1, 1, 0, 2, Q("40.173256 mm")),
])
pocket8 = body.newObject("PartDesign::Pocket", "Pocket007")
pocket8.Profile = sketch11
pocket8.Type = "ThroughAll"

# Sketch on XY plane
sketch12 = body.newObject("Sketcher::SketchObject", "Sketch011")
sketch12.AttachmentSupport = (doc.getObject("XY_Plane"), [""])
sketch12.MapMode = "FlatFace"
sketch12.AttachmentOffset = App.Placement(V(0, 0, 5), App.Rotation())
sketch12.addGeometry(Part.Circle(V(31, 45, 0), V(0, 0, 1), 15), False)
sketch12.addConstraint([
    Sketcher.Constraint("Diameter", 0, Q("30 mm")),
    Sketcher.Constraint("DistanceY", -1, 1, 0, 3, Q("45 mm")),
    Sketcher.Constraint("DistanceX", -1, 1, 0, 3, Q("31.048313 mm")),
])
pocket9 = body.newObject("PartDesign::Pocket", "Pocket008")
pocket9.Profile = sketch12
pocket9.Length = 3

# Sketch on XY plane
sketch13 = body.newObject("Sketcher::SketchObject", "Sketch012")
sketch13.AttachmentSupport = (doc.getObject("XY_Plane"), [""])
sketch13.MapMode = "FlatFace"
sketch13.AttachmentOffset = App.Placement(V(0, 0, 5), App.Rotation())
sketch13.addGeometry(Part.Circle(V(68, 38, 0), V(0, 0, 1), 6), False)
sketch13.addConstraint([
    Sketcher.Constraint("Diameter", 0, Q("12.2 mm")),
    Sketcher.Constraint("DistanceY", -1, 1, 0, 3, Q("38 mm")),
    Sketcher.Constraint("DistanceX", -1, 1, 0, 3, Q("68.4 mm")),
])
pocket10 = body.newObject("PartDesign::Pocket", "Pocket009")
pocket10.Profile = sketch13
pocket10.Length = 1

# Sketch on XY plane
sketch14 = body.newObject("Sketcher::SketchObject", "Sketch013")
sketch14.AttachmentSupport = (doc.getObject("XY_Plane"), [""])
sketch14.MapMode = "FlatFace"
sketch14.addGeometry([
    Part.Circle(V(85.9, 16, 0), V(0, 0, 1), 1.4),
    Part.Circle(V(153.5, 16, 0), V(0, 0, 1), 1.4),
    Part.Circle(V(85.9, 55, 0), V(0, 0, 1), 1.4),
    Part.Circle(V(153.5, 55, 0), V(0, 0, 1), 1.4),
], False)
sketch14.addConstraint([
    Sketcher.Constraint("Equal", 0, 1),
    Sketcher.Constraint("Equal", 1, 2),
    Sketcher.Constraint("Equal", 2, 3),
    Sketcher.Constraint("Horizontal", 0, 3, 1, 3),
    Sketcher.Constraint("Horizontal", 2, 3, 3, 3),
    Sketcher.Constraint("Vertical", 0, 3, 2, 3),
    Sketcher.Constraint("Vertical", 1, 3, 3, 3),
    Sketcher.Constraint("Diameter", 0, Q("2.8 mm")),
    Sketcher.Constraint("DistanceY", -1, 1, 0, 3, Q("16 mm")),
    Sketcher.Constraint("DistanceY", -1, 1, 2, 3, Q("55 mm")),
    Sketcher.Constraint("DistanceX", -1, 1, 0, 3, Q("85.9 mm")),
    Sketcher.Constraint("DistanceX", -1, 1, 1, 3, Q("153.5 mm")),
])
pocket11 = body.newObject("PartDesign::Pocket", "Pocket010")
pocket11.Profile = sketch14
pocket11.Length = 3.5
pocket11.Reversed = True

# Sketch on XY plane
sketch15 = body.newObject("Sketcher::SketchObject", "Sketch014")
sketch15.AttachmentSupport = (doc.getObject("XY_Plane"), [""])
sketch15.MapMode = "FlatFace"
sketch15.AttachmentOffset = App.Placement(V(0, 0, 3.5), App.Rotation())
sketch15.addGeometry([
    Part.LineSegment(V(85.2, 53.8, 0), V(85.2, 56.2, 0)),  # 0
    Part.ArcOfCircle(Part.Circle(V(85.9, 54.1, 0), V(0, 0, 1), 2.2), math.radians(70), math.radians(110)),  # 1
    Part.LineSegment(V(86.7, 56.2, 0), V(86.7, 53.8, 0)),  # 2
    Part.ArcOfCircle(Part.Circle(V(85.9, 55.2, 0), V(0, 0, 1), 1.6), math.radians(-118), math.radians(-62)),  # 3
    Part.LineSegment(V(152.8, 14.8, 0), V(152.8, 17.2, 0)),  # 4
    Part.ArcOfCircle(Part.Circle(V(153.5, 16, 0), V(0, 0, 1), 1.4), math.radians(58), math.radians(122)),  # 5
    Part.LineSegment(V(154.2, 17.2, 0), V(154.2, 14.8, 0)),  # 6
    Part.ArcOfCircle(Part.Circle(V(153.5, 16, 0), V(0, 0, 1), 1.4), math.radians(-122), math.radians(-58)),  # 7
    Part.LineSegment(V(152.8, 53.8, 0), V(152.8, 56.2, 0)),  # 8
    Part.ArcOfCircle(Part.Circle(V(153.5, 55, 0), V(0, 0, 1), 1.4), math.radians(58), math.radians(122)),  # 9
    Part.LineSegment(V(154.2, 56.2, 0), V(154.2, 53.8, 0)),  # 10
    Part.ArcOfCircle(Part.Circle(V(153.5, 55, 0), V(0, 0, 1), 1.4), math.radians(-122), math.radians(-58)),  # 11
    Part.LineSegment(V(85.2, 14.8, 0), V(85.2, 17.2, 0)),  # 12
    Part.ArcOfCircle(Part.Circle(V(85.9, 16.2, 0), V(0, 0, 1), 1.2), math.radians(53), math.radians(127)),  # 13
    Part.LineSegment(V(86.7, 17.2, 0), V(86.7, 14.8, 0)),  # 14
    Part.ArcOfCircle(Part.Circle(V(85.9, 16, 0), V(0, 0, 1), 1.4), math.radians(-122), math.radians(-58)),  # 15
], False)
sketch15.addConstraint([
    Sketcher.Constraint("Coincident", 0, 2, 1, 2),
    Sketcher.Constraint("Coincident", 1, 1, 2, 1),
    Sketcher.Constraint("Coincident", 2, 2, 3, 2),
    Sketcher.Constraint("Coincident", 3, 1, 0, 1),
    Sketcher.Constraint("Coincident", 4, 2, 5, 2),
    Sketcher.Constraint("Coincident", 5, 1, 6, 1),
    Sketcher.Constraint("Coincident", 6, 2, 7, 2),
    Sketcher.Constraint("Coincident", 7, 1, 4, 1),
    Sketcher.Constraint("Coincident", 8, 2, 9, 2),
    Sketcher.Constraint("Coincident", 9, 1, 10, 1),
    Sketcher.Constraint("Coincident", 10, 2, 11, 2),
    Sketcher.Constraint("Coincident", 11, 1, 8, 1),
    Sketcher.Constraint("Coincident", 12, 2, 13, 2),
    Sketcher.Constraint("Coincident", 13, 1, 14, 1),
    Sketcher.Constraint("Coincident", 14, 2, 15, 2),
    Sketcher.Constraint("Coincident", 15, 1, 12, 1),
    Sketcher.Constraint("Vertical", 0),
    Sketcher.Constraint("Vertical", 2),
    Sketcher.Constraint("Vertical", 4),
    Sketcher.Constraint("Vertical", 6),
    Sketcher.Constraint("Vertical", 8),
    Sketcher.Constraint("Vertical", 10),
    Sketcher.Constraint("Vertical", 12),
    Sketcher.Constraint("Vertical", 14),
    Sketcher.Constraint("Coincident", 7, 3, 5, 3),
    Sketcher.Constraint("Coincident", 11, 3, 9, 3),
    Sketcher.Constraint("Equal", 5, 7),
    Sketcher.Constraint("Equal", 7, 9),
    Sketcher.Constraint("Equal", 9, 11),
    Sketcher.Constraint("Equal", 11, 15),
    Sketcher.Constraint("Horizontal", 7, 3, 15, 3),
    Sketcher.Constraint("Horizontal", 0, 2, 1, 1),
    Sketcher.Constraint("Horizontal", 2, 2, 3, 1),
    Sketcher.Constraint("Horizontal", 4, 2, 5, 1),
    Sketcher.Constraint("Horizontal", 1, 1, 8, 2),
    Sketcher.Constraint("Horizontal", 8, 2, 9, 1),
    Sketcher.Constraint("Horizontal", 3, 1, 10, 2),
    Sketcher.Constraint("Horizontal", 5, 1, 12, 2),
    Sketcher.Constraint("Horizontal", 12, 2, 13, 1),
    Sketcher.Constraint("Horizontal", 7, 1, 14, 2),
    Sketcher.Constraint("Horizontal", 14, 2, 15, 1),
    Sketcher.Constraint("Vertical", 7, 3, 9, 3),
    Sketcher.Constraint("Vertical", 3, 3, 13, 3),
    Sketcher.Constraint("Vertical", 7, 1, 8, 2),
    Sketcher.Constraint("Vertical", 3, 1, 12, 2),
    Sketcher.Constraint("Radius", 5, Q("1.4 mm")),
    Sketcher.Constraint("DistanceY", -1, 1, 5, 3, Q("16 mm")),
    Sketcher.Constraint("DistanceY", -1, 1, 9, 3, Q("55 mm")),
    Sketcher.Constraint("DistanceX", -1, 1, 1, 3, Q("85.9 mm")),
    Sketcher.Constraint("DistanceX", -1, 1, 5, 3, Q("153.5 mm")),
    Sketcher.Constraint("Radius", 3, Q("1.598901 mm")),
    Sketcher.Constraint("DistanceX", 0, 2, 1, 1, Q("1.5 mm")),
    Sketcher.Constraint("Radius", 1, Q("2.170661 mm")),
    Sketcher.Constraint("Radius", 13, Q("1.243769 mm")),
])
pocket12 = body.newObject("PartDesign::Pocket", "Pocket011")
pocket12.Profile = sketch15
pocket12.Length = 0.2
pocket12.Reversed = True

# Sketch on XY plane
sketch16 = body.newObject("Sketcher::SketchObject", "Sketch015")
sketch16.AttachmentSupport = (doc.getObject("XY_Plane"), [""])
sketch16.MapMode = "FlatFace"
sketch16.addGeometry([
    Part.LineSegment(V(63, 31, 0), V(63, 43, 0)),
    Part.LineSegment(V(63, 43, 0), V(73, 43, 0)),
    Part.LineSegment(V(73, 43, 0), V(73, 31, 0)),
    Part.LineSegment(V(73, 31, 0), V(63, 31, 0)),
], False)
sketch16.addConstraint([
    Sketcher.Constraint("Coincident", 0, 2, 1, 1),
    Sketcher.Constraint("Coincident", 1, 2, 2, 1),
    Sketcher.Constraint("Coincident", 2, 2, 3, 1),
    Sketcher.Constraint("Coincident", 3, 2, 0, 1),
    Sketcher.Constraint("Vertical", 0),
    Sketcher.Constraint("Horizontal", 1),
    Sketcher.Constraint("Vertical", 2),
    Sketcher.Constraint("Horizontal", 3),
    Sketcher.Constraint("DistanceX", 1, 1, 1, 2, Q("10 mm")),
    Sketcher.Constraint("DistanceY", 0, 1, 0, 2, Q("12 mm")),
    Sketcher.Constraint("DistanceY", -1, 1, 0, 2, Q("43 mm")),
    Sketcher.Constraint("DistanceX", -1, 1, 0, 2, Q("63.4 mm")),
])
pocket13 = body.newObject("PartDesign::Pocket", "Pocket012")
pocket13.Profile = sketch16
pocket13.Length = 2.5
pocket13.Reversed = True

# Sketch on XZ plane
sketch17 = body.newObject("Sketcher::SketchObject", "Sketch016")
sketch17.AttachmentSupport = (doc.getObject("XZ_Plane"), [""])
sketch17.MapMode = "FlatFace"
sketch17.AttachmentOffset = App.Placement(V(0, 0, -55.75), App.Rotation())
sketch17.addGeometry([
    Part.LineSegment(V(65, -34, 0), V(65, -42, 0)),
    Part.LineSegment(V(65, -42, 0), V(72, -42, 0)),
    Part.LineSegment(V(72, -42, 0), V(72, -34, 0)),
    Part.LineSegment(V(72, -34, 0), V(65, -34, 0)),
], False)
sketch17.addConstraint([
    Sketcher.Constraint("Coincident", 0, 2, 1, 1),
    Sketcher.Constraint("Coincident", 1, 2, 2, 1),
    Sketcher.Constraint("Coincident", 2, 2, 3, 1),
    Sketcher.Constraint("Coincident", 3, 2, 0, 1),
    Sketcher.Constraint("Vertical", 0),
    Sketcher.Constraint("Horizontal", 1),
    Sketcher.Constraint("Vertical", 2),
    Sketcher.Constraint("Horizontal", 3),
    Sketcher.Constraint("Equal", 3, 0),
    Sketcher.Constraint("DistanceX", 1, 1, 1, 2, Q("7.2 mm")),
    Sketcher.Constraint("DistanceX", -1, 1, 1, 2, Q("72 mm")),
    Sketcher.Constraint("DistanceY", 0, 2, -1, 1, Q("41.6 mm")),
])
pocket14 = body.newObject("PartDesign::Pocket", "Pocket013")
pocket14.Profile = sketch17
pocket14.Length = 0.2

# Sketch on XY plane
sketch18 = body.newObject("Sketcher::SketchObject", "Sketch017")
sketch18.AttachmentSupport = (doc.getObject("XY_Plane"), [""])
sketch18.MapMode = "FlatFace"
sketch18.addGeometry([
    Part.ArcOfCircle(Part.Circle(V(86.5, 25, 0), V(0, 0, 1), 1.5), math.radians(180), math.radians(360)),
    Part.LineSegment(V(85, 25, 0), V(85, 45, 0)),
    Part.ArcOfCircle(Part.Circle(V(86.5, 45, 0), V(0, 0, 1), 1.5), math.radians(0), math.radians(180)),
    Part.LineSegment(V(88, 45, 0), V(88, 25, 0)),
], False)
sketch18.addConstraint([
    Sketcher.Constraint("Tangent", 0, 1, 1, 1),
    Sketcher.Constraint("Tangent", 1, 2, 2, 2),
    Sketcher.Constraint("Tangent", 2, 1, 3, 1),
    Sketcher.Constraint("Tangent", 3, 2, 0, 2),
    Sketcher.Constraint("Vertical", 1),
    Sketcher.Constraint("Vertical", 3),
    Sketcher.Constraint("Radius", 0, Q("1.5 mm")),
    Sketcher.Constraint("DistanceY", 1, 1, 1, 2, Q("20 mm")),
    Sketcher.Constraint("DistanceY", -1, 1, 0, 3, Q("25 mm")),
    Sketcher.Constraint("DistanceX", -1, 1, 0, 1, Q("85 mm")),
])
pocket15 = body.newObject("PartDesign::Pocket", "Pocket014")
pocket15.Profile = sketch18
pocket15.Length = 3
pocket15.Reversed = True
doc.recompute()

chamfer = body.newObject("PartDesign::Chamfer", "Chamfer")
chamfer.Base = (pocket15, edges_at(pocket15, [
    (88.4, 35.5, 5),
    (119.7, 55, 5),
    (151, 35.5, 5),
    (151, 35.5, 5),
    (144.75, 16, 5),
    (137.5, 15, 5),
    (119.7, 14, 5),
    (101.9, 15, 5),
    (94.65, 16, 5),
]))
chamfer.Size = 2.2
doc.recompute()

chamfer2 = body.newObject("PartDesign::Chamfer", "Chamfer001")
chamfer2.Base = (chamfer, edges_at(chamfer, [(16.048, 45, 5)]))
chamfer2.Size = 2.9

doc.recompute()
